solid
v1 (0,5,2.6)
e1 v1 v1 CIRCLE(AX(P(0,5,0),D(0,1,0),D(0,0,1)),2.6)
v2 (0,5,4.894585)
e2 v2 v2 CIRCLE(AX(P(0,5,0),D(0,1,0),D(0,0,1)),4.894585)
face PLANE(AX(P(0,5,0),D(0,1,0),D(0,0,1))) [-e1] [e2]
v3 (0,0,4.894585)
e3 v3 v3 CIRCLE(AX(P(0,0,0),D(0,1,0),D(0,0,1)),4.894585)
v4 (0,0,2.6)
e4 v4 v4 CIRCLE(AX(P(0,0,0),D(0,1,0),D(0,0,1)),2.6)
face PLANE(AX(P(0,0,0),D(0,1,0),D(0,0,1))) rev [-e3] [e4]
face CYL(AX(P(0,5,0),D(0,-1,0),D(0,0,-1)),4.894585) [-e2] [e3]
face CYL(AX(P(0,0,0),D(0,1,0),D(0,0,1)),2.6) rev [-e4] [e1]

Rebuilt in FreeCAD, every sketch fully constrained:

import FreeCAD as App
import Part
import Sketcher

V = App.Vector

doc = App.newDocument("Part")
body = doc.addObject("PartDesign::Body", "Body")

# Sketch on XZ plane
sketch1 = body.newObject("Sketcher::SketchObject", "Sketch")
sketch1.AttachmentSupport = (doc.getObject("XZ_Plane"), [""])
sketch1.MapMode = "FlatFace"
sketch1.addGeometry(Part.Circle(V(0, 0, 0), V(0, 0, 1), 4.9), False)
sketch1.addConstraint([
    Sketcher.Constraint("Coincident", 0, 3, -1, 1),
    Sketcher.Constraint("Diameter", 0, 9.78917),
])
pad1 = body.newObject("PartDesign::Pad", "Pad")
pad1.Profile = sketch1
pad1.Length = 5
pad1.Reversed = True

# Sketch on XZ plane
sketch2 = body.newObject("Sketcher::SketchObject", "Sketch001")
sketch2.AttachmentSupport = (doc.getObject("XZ_Plane"), [""])
sketch2.MapMode = "FlatFace"
sketch2.AttachmentOffset = App.Placement(V(0, 0, -5), App.Rotation())
sketch2.addGeometry(Part.Circle(V(0, 0, 0), V(0, 0, 1), 2.6), False)
sketch2.addConstraint([
    Sketcher.Constraint("Coincident", 0, 3, -1, 1),
    Sketcher.Constraint("Diameter", 0, 5.2),
])
pocket1 = body.newObject("PartDesign::Pocket", "Pocket")
pocket1.Profile = sketch2
pocket1.Type = "ThroughAll"
pocket1.Reversed = True

doc.recompute()
